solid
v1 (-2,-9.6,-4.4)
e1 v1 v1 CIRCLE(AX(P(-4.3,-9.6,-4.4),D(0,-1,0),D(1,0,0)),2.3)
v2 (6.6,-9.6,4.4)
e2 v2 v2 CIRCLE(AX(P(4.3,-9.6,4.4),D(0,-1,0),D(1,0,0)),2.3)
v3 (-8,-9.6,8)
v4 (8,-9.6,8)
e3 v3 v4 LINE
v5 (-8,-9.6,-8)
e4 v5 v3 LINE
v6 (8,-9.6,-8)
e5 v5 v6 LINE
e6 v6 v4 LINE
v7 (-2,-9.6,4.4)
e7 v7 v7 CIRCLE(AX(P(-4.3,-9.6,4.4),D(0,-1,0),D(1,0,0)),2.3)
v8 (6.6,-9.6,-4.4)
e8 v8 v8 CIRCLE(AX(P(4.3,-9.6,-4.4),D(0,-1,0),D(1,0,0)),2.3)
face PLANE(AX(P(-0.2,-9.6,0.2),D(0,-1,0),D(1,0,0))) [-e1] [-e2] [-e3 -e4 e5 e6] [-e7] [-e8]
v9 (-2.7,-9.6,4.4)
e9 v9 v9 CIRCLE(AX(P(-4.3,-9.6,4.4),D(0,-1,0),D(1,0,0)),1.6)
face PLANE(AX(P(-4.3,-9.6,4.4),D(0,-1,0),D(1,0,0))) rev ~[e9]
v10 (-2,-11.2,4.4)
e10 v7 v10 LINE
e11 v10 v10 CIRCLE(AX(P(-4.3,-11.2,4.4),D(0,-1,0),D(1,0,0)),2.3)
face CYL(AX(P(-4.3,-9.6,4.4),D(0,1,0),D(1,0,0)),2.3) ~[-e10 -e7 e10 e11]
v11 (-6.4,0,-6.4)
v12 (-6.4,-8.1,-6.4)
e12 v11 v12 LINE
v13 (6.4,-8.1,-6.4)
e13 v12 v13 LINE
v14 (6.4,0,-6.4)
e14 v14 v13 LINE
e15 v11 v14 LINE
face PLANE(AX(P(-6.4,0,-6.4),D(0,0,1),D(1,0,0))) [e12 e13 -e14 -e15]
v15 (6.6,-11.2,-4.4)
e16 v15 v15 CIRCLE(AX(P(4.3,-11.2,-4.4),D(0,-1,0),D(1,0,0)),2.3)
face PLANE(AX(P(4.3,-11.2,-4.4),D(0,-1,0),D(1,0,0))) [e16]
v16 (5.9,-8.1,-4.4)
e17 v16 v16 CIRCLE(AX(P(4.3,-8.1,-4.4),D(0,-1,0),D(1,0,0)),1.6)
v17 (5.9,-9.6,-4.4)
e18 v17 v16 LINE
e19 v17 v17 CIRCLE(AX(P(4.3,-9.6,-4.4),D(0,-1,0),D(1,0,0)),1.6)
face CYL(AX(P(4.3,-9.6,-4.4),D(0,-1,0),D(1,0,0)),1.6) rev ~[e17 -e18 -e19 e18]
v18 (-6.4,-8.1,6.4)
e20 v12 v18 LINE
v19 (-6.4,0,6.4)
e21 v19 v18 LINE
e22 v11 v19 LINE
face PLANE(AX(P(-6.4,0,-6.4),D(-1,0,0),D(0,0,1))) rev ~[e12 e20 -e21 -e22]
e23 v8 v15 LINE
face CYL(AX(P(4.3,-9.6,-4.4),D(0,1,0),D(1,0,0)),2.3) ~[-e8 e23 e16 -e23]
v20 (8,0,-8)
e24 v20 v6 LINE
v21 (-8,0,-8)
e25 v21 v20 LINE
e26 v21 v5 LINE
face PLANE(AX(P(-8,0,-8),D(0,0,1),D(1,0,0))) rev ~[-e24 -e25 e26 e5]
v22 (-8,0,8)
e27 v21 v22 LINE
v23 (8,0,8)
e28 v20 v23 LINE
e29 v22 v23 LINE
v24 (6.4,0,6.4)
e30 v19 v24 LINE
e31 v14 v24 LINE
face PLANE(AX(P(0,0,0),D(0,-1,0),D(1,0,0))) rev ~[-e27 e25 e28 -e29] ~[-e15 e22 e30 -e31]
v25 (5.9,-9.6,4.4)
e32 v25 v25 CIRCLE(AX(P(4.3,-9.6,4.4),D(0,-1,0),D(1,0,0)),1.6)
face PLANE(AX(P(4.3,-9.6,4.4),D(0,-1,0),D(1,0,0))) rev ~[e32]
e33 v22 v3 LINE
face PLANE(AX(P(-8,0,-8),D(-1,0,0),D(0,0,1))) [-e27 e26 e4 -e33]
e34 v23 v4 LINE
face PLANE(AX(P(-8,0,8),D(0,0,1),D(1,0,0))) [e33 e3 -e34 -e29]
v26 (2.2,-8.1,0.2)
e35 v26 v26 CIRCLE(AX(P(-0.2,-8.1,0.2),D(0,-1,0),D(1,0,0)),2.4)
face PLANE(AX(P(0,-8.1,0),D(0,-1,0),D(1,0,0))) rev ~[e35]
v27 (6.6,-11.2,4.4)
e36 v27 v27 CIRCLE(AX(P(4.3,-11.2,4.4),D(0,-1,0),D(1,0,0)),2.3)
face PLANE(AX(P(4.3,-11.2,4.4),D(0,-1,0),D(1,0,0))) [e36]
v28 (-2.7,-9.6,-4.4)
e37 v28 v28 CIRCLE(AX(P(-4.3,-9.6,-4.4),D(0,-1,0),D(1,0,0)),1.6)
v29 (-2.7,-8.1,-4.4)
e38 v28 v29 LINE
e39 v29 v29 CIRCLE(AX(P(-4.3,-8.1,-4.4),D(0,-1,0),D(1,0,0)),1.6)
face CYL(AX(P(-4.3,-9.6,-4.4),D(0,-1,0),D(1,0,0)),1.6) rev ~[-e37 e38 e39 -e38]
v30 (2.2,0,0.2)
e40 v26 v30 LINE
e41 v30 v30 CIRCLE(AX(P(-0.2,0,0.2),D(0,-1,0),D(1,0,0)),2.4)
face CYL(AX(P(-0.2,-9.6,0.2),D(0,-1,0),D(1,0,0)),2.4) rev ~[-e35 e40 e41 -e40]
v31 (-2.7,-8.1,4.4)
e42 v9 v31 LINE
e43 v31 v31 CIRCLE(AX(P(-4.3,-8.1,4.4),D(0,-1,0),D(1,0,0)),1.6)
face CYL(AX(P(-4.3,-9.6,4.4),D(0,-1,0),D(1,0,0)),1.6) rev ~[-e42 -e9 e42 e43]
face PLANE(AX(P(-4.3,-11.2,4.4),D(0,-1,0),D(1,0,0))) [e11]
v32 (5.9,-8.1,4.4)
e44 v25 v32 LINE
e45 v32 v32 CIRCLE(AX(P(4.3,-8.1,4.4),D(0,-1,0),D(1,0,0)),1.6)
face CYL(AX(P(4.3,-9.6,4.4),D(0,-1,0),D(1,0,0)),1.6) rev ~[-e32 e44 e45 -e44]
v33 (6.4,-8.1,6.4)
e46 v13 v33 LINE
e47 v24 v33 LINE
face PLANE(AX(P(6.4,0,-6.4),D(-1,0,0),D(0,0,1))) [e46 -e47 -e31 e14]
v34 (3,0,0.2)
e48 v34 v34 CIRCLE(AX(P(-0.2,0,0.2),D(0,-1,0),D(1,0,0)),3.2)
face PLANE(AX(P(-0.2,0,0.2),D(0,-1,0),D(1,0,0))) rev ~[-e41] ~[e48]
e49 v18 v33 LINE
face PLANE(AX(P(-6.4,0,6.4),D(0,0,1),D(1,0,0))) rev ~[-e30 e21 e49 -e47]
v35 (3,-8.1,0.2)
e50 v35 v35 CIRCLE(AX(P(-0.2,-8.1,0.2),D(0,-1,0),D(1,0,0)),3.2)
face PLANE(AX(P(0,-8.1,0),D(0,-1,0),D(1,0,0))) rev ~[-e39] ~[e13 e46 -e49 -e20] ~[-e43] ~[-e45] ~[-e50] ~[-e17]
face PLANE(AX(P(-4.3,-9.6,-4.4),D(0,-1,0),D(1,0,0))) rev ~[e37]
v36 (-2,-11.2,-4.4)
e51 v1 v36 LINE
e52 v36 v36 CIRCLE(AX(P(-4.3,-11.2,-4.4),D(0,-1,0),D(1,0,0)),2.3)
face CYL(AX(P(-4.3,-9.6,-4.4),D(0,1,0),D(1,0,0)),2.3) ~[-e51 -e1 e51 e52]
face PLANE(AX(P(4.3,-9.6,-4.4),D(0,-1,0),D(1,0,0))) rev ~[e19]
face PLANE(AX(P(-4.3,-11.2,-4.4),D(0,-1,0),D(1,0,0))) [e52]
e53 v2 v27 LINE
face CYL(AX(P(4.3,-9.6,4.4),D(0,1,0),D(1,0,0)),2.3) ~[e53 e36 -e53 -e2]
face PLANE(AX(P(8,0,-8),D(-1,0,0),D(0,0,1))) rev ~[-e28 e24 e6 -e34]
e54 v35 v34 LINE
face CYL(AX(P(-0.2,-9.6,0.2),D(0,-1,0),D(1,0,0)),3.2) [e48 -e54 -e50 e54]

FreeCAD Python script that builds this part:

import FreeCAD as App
import Part
import Sketcher


def add_polygon(sketch, points):
    """Adds a closed chain of lines whose ends are joined by coincident constraints."""
    first, n = sketch.GeometryCount, len(points)
    for a, b in zip(points, points[1:] + points[:1]):
        sketch.addGeometry(Part.LineSegment(App.Vector(*a, 0), App.Vector(*b, 0)), False)
    for i in range(n):
        sketch.addConstraint(Sketcher.Constraint("Coincident", first + i, 2, first + (i + 1) % n, 1))

doc = App.newDocument("Part")
params = doc.addObject("Spreadsheet::Sheet", "Params")
for row, (alias, value) in enumerate([
    ("sketch1_width", "16 mm"),
    ("pad1_length", "9.6 mm"),
    ("sketch2_width", "12.8 mm"),
    ("pocket1_length", "8.1 mm"),
    ("sketch3_diameter", "3.2 mm"),
    ("pocket2_length", "1.6 mm"),
    ("sketch4_diameter", "4.6 mm"),
    ("pad2_length", "1.6 mm"),
    ("sketch5_diameter", "6.4 mm"),
    ("sketch5_diameter2", "4.8 mm"),
    ("pad3_length", "9.6 mm"),
], start=1):
    params.set(f"A{row}", alias)
    params.set(f"B{row}", "=" + value)
    params.setAlias(f"B{row}", alias)

body = doc.addObject("PartDesign::Body", "Body")

# Sketch on XZ plane
sketch1 = body.newObject("Sketcher::SketchObject", "Sketch")
sketch1.AttachmentSupport = (doc.getObject("XZ_Plane"), [""])
sketch1.MapMode = "FlatFace"
add_polygon(sketch1, [(-8, 8), (-8, -8), (8, -8), (8, 8)])  # lines 0-3
sketch1.addConstraint([
    Sketcher.Constraint("Vertical", 0),
    Sketcher.Constraint("Horizontal", 1),
    Sketcher.Constraint("Vertical", 2),
    Sketcher.Constraint("Horizontal", 3),
    Sketcher.Constraint("Symmetric", 0, 2, 2, 2, -1, 1),
    Sketcher.Constraint("Equal", 3, 0),
    Sketcher.Constraint("DistanceX", 1, 1, 1, 2, 16.0),
])
sketch1.setExpression("Constraints[10]", "Params.sketch1_width")
pad1 = body.newObject("PartDesign::Pad", "Pad")
pad1.Profile = sketch1
pad1.setExpression("Length", "Params.pad1_length")

# Sketch on XZ plane
sketch2 = body.newObject("Sketcher::SketchObject", "Sketch001")
sketch2.AttachmentSupport = (doc.getObject("XZ_Plane"), [""])
sketch2.MapMode = "FlatFace"
add_polygon(sketch2, [(-6, 6), (-6, -6), (6, -6), (6, 6)])  # lines 0-3
sketch2.addConstraint([
    Sketcher.Constraint("Vertical", 0),
    Sketcher.Constraint("Horizontal", 1),
    Sketcher.Constraint("Vertical", 2),
    Sketcher.Constraint("Horizontal", 3),
    Sketcher.Constraint("Symmetric", 0, 2, 2, 2, -1, 1),
    Sketcher.Constraint("Equal", 3, 0),
    Sketcher.Constraint("DistanceX", 1, 1, 1, 2, 12.8),
])
sketch2.setExpression("Constraints[10]", "Params.sketch2_width")
pocket1 = body.newObject("PartDesign::Pocket", "Pocket")
pocket1.Profile = sketch2
pocket1.setExpression("Length", "Params.pocket1_length")
pocket1.Reversed = True

# Sketch on XZ plane
sketch3 = body.newObject("Sketcher::SketchObject", "Sketch002")
sketch3.AttachmentSupport = (doc.getObject("XZ_Plane"), [""])
sketch3.MapMode = "FlatFace"
sketch3.AttachmentOffset = App.Placement(App.Vector(0, 0, 9.6), App.Rotation())
sketch3.addGeometry([
    Part.Circle(App.Vector(-4.3, 4.4, 0), App.Vector(0, 0, 1), 1.6),
    Part.Circle(App.Vector(-4.3, -4.4, 0), App.Vector(0, 0, 1), 1.6),
    Part.Circle(App.Vector(4.3, 4.4, 0), App.Vector(0, 0, 1), 1.6),
    Part.Circle(App.Vector(4.3, -4.4, 0), App.Vector(0, 0, 1), 1.6),
], False)
sketch3.addConstraint([
    Sketcher.Constraint("Equal", 0, 1),
    Sketcher.Constraint("Equal", 1, 2),
    Sketcher.Constraint("Equal", 2, 3),
    Sketcher.Constraint("Symmetric", 1, 3, 2, 3, -1, 1),
    Sketcher.Constraint("Symmetric", 0, 3, 3, 3, -1, 1),
    Sketcher.Constraint("Symmetric", 0, 3, 2, 3, -2),
    Sketcher.Constraint("Diameter", 0, 3.2),
    Sketcher.Constraint("DistanceX", 0, 3, -1, 1, 4.3),
    Sketcher.Constraint("DistanceY", -1, 1, 0, 3, 4.4),
])
sketch3.setExpression("Constraints[6]", "Params.sketch3_diameter")
pocket2 = body.newObject("PartDesign::Pocket", "Pocket001")
pocket2.Profile = sketch3
pocket2.setExpression("Length", "Params.pocket2_length")

# Sketch on XZ plane
sketch4 = body.newObject("Sketcher::SketchObject", "Sketch003")
sketch4.AttachmentSupport = (doc.getObject("XZ_Plane"), [""])
sketch4.MapMode = "FlatFace"
sketch4.AttachmentOffset = App.Placement(App.Vector(0, 0, 9.6), App.Rotation())
sketch4.addGeometry([
    Part.Circle(App.Vector(-4.3, 4.4, 0), App.Vector(0, 0, 1), 2.3),
    Part.Circle(App.Vector(-4.3, -4.4, 0), App.Vector(0, 0, 1), 2.3),
    Part.Circle(App.Vector(4.3, 4.4, 0), App.Vector(0, 0, 1), 2.3),
    Part.Circle(App.Vector(4.3, -4.4, 0), App.Vector(0, 0, 1), 2.3),
], False)
sketch4.addConstraint([
    Sketcher.Constraint("Equal", 0, 1),
    Sketcher.Constraint("Equal", 1, 2),
    Sketcher.Constraint("Equal", 2, 3),
    Sketcher.Constraint("Symmetric", 1, 3, 2, 3, -1, 1),
    Sketcher.Constraint("Symmetric", 0, 3, 3, 3, -1, 1),
    Sketcher.Constraint("Symmetric", 0, 3, 2, 3, -2),
    Sketcher.Constraint("Diameter", 0, 4.6),
    Sketcher.Constraint("DistanceX", 0, 3, -1, 1, 4.3),
    Sketcher.Constraint("DistanceY", -1, 1, 0, 3, 4.4),
])
sketch4.setExpression("Constraints[6]", "Params.sketch4_diameter")
pad2 = body.newObject("PartDesign::Pad", "Pad001")
pad2.Profile = sketch4
pad2.setExpression("Length", "Params.pad2_length")

# Sketch on XZ plane
sketch5 = body.newObject("Sketcher::SketchObject", "Sketch004")
sketch5.AttachmentSupport = (doc.getObject("XZ_Plane"), [""])
sketch5.MapMode = "FlatFace"
sketch5.AttachmentOffset = App.Placement(App.Vector(0, 0, 9.6), App.Rotation())
sketch5.addGeometry([
    Part.Circle(App.Vector(-0.2, 0.2, 0), App.Vector(0, 0, 1), 3.2),
    Part.Circle(App.Vector(-0.2, 0.2, 0), App.Vector(0, 0, 1), 2.4),
], False)
sketch5.addConstraint([
    Sketcher.Constraint("Coincident", 1, 3, 0, 3),
    Sketcher.Constraint("Diameter", 0, 6.4),
    Sketcher.Constraint("Diameter", 1, 4.8),
    Sketcher.Constraint("DistanceX", 0, 3, -1, 1, 0.2),
    Sketcher.Constraint("DistanceY", -1, 1, 0, 3, 0.2),
])
sketch5.setExpression("Constraints[1]", "Params.sketch5_diameter")
sketch5.setExpression("Constraints[2]", "Params.sketch5_diameter2")
pad3 = body.newObject("PartDesign::Pad", "Pad002")
pad3.Profile = sketch5
pad3.setExpression("Length", "Params.pad3_length")
pad3.Reversed = True

doc.recompute()
